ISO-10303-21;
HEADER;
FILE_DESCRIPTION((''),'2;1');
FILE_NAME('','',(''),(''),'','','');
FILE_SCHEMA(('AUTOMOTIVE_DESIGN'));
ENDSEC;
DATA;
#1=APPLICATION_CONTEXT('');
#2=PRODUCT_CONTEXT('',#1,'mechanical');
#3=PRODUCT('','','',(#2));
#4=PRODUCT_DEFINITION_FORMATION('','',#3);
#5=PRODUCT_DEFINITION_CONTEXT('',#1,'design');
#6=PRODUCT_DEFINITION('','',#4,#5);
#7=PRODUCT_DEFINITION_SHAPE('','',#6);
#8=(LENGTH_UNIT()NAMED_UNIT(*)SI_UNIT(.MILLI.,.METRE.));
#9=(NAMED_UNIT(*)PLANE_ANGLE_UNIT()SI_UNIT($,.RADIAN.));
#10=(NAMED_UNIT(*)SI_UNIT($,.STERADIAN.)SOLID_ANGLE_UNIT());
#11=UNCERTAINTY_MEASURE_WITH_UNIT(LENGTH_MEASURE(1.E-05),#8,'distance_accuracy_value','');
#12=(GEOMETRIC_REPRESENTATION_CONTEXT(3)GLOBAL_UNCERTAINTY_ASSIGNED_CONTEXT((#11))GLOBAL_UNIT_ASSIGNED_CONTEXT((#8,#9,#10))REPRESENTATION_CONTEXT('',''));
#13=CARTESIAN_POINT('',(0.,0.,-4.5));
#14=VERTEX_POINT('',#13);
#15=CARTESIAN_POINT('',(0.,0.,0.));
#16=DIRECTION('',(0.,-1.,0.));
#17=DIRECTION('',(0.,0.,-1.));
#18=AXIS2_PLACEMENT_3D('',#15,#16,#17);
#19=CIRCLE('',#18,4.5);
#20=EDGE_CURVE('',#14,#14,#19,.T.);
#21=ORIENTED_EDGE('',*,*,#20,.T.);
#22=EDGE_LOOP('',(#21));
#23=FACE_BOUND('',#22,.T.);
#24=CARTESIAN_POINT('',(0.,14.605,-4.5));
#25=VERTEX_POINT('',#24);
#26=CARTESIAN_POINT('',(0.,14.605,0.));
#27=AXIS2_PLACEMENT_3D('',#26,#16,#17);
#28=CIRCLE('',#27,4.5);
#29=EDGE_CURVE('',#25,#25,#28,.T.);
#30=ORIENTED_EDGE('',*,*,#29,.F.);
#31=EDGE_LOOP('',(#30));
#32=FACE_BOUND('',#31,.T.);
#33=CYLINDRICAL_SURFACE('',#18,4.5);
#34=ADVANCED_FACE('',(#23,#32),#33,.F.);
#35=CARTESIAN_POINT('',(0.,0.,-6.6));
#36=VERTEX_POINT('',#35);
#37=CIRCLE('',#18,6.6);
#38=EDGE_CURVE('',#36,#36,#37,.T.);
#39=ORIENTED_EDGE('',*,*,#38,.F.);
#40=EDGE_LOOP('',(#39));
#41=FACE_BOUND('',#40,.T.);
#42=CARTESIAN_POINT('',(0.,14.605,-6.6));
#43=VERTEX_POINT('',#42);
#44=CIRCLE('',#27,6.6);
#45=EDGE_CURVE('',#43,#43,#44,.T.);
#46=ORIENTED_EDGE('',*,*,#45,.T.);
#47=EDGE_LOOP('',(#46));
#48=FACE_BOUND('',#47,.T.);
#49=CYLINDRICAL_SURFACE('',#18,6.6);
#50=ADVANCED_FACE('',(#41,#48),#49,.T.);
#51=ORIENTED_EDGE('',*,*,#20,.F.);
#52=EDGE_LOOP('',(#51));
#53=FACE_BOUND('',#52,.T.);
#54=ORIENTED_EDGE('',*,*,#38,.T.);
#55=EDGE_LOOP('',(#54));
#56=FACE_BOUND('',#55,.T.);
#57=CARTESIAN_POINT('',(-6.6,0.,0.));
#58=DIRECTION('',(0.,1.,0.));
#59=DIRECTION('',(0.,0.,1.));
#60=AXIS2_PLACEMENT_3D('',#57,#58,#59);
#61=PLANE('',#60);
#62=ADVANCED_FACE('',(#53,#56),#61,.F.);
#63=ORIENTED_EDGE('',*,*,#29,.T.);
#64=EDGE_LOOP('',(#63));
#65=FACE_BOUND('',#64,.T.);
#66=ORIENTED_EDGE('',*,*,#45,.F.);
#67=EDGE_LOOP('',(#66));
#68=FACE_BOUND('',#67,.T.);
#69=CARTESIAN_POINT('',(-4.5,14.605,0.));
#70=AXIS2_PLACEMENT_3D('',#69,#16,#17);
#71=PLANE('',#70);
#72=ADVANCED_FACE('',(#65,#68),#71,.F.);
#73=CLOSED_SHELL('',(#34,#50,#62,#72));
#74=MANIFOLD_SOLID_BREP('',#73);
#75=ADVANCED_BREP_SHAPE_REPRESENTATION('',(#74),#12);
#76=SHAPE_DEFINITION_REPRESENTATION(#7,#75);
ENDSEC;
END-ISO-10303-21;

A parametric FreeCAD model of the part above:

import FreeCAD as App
import Part
import Sketcher

doc = App.newDocument("Part")
body = doc.addObject("PartDesign::Body", "Body")

# Sketch on XY plane
sketch1 = doc.addObject("Sketcher::SketchObject", "Sketch")
body.addObject(sketch1)
sketch1.AttachmentSupport = (doc.XY_Plane, [""])
sketch1.MapMode = "FlatFace"
sketch1.addGeometry(Part.LineSegment(App.Vector(-6.6, 14.6, 0), App.Vector(-6.6, 0, 0)), False)
sketch1.addGeometry(Part.LineSegment(App.Vector(-6.6, 0, 0), App.Vector(-4.5, 0, 0)), False)
sketch1.addGeometry(Part.LineSegment(App.Vector(-4.5, 0, 0), App.Vector(-4.5, 14.6, 0)), False)
sketch1.addGeometry(Part.LineSegment(App.Vector(-4.5, 14.6, 0), App.Vector(-6.6, 14.6, 0)), False)
sketch1.addConstraint(Sketcher.Constraint("Coincident", 0, 2, 1, 1))
sketch1.addConstraint(Sketcher.Constraint("Coincident", 1, 2, 2, 1))
sketch1.addConstraint(Sketcher.Constraint("Coincident", 2, 2, 3, 1))
sketch1.addConstraint(Sketcher.Constraint("Coincident", 3, 2, 0, 1))
sketch1.addConstraint(Sketcher.Constraint("Vertical", 0))
sketch1.addConstraint(Sketcher.Constraint("Horizontal", 1))
sketch1.addConstraint(Sketcher.Constraint("Vertical", 2))
sketch1.addConstraint(Sketcher.Constraint("Horizontal", 3))
sketch1.addConstraint(Sketcher.Constraint("PointOnObject", 0, 2, -1))
sketch1.addConstraint(Sketcher.Constraint("DistanceX", 1, 1, 1, 2, 2.1))
sketch1.addConstraint(Sketcher.Constraint("DistanceX", 0, 2, -1, 1, 6.6))
sketch1.addConstraint(Sketcher.Constraint("DistanceY", 0, 2, 0, 1, 14.605))
revolution = doc.addObject("PartDesign::Revolution", "Revolution")
body.addObject(revolution)
revolution.Profile = sketch1
revolution.ReferenceAxis = (sketch1, ["V_Axis"])
revolution.Angle = 360

doc.recompute()
